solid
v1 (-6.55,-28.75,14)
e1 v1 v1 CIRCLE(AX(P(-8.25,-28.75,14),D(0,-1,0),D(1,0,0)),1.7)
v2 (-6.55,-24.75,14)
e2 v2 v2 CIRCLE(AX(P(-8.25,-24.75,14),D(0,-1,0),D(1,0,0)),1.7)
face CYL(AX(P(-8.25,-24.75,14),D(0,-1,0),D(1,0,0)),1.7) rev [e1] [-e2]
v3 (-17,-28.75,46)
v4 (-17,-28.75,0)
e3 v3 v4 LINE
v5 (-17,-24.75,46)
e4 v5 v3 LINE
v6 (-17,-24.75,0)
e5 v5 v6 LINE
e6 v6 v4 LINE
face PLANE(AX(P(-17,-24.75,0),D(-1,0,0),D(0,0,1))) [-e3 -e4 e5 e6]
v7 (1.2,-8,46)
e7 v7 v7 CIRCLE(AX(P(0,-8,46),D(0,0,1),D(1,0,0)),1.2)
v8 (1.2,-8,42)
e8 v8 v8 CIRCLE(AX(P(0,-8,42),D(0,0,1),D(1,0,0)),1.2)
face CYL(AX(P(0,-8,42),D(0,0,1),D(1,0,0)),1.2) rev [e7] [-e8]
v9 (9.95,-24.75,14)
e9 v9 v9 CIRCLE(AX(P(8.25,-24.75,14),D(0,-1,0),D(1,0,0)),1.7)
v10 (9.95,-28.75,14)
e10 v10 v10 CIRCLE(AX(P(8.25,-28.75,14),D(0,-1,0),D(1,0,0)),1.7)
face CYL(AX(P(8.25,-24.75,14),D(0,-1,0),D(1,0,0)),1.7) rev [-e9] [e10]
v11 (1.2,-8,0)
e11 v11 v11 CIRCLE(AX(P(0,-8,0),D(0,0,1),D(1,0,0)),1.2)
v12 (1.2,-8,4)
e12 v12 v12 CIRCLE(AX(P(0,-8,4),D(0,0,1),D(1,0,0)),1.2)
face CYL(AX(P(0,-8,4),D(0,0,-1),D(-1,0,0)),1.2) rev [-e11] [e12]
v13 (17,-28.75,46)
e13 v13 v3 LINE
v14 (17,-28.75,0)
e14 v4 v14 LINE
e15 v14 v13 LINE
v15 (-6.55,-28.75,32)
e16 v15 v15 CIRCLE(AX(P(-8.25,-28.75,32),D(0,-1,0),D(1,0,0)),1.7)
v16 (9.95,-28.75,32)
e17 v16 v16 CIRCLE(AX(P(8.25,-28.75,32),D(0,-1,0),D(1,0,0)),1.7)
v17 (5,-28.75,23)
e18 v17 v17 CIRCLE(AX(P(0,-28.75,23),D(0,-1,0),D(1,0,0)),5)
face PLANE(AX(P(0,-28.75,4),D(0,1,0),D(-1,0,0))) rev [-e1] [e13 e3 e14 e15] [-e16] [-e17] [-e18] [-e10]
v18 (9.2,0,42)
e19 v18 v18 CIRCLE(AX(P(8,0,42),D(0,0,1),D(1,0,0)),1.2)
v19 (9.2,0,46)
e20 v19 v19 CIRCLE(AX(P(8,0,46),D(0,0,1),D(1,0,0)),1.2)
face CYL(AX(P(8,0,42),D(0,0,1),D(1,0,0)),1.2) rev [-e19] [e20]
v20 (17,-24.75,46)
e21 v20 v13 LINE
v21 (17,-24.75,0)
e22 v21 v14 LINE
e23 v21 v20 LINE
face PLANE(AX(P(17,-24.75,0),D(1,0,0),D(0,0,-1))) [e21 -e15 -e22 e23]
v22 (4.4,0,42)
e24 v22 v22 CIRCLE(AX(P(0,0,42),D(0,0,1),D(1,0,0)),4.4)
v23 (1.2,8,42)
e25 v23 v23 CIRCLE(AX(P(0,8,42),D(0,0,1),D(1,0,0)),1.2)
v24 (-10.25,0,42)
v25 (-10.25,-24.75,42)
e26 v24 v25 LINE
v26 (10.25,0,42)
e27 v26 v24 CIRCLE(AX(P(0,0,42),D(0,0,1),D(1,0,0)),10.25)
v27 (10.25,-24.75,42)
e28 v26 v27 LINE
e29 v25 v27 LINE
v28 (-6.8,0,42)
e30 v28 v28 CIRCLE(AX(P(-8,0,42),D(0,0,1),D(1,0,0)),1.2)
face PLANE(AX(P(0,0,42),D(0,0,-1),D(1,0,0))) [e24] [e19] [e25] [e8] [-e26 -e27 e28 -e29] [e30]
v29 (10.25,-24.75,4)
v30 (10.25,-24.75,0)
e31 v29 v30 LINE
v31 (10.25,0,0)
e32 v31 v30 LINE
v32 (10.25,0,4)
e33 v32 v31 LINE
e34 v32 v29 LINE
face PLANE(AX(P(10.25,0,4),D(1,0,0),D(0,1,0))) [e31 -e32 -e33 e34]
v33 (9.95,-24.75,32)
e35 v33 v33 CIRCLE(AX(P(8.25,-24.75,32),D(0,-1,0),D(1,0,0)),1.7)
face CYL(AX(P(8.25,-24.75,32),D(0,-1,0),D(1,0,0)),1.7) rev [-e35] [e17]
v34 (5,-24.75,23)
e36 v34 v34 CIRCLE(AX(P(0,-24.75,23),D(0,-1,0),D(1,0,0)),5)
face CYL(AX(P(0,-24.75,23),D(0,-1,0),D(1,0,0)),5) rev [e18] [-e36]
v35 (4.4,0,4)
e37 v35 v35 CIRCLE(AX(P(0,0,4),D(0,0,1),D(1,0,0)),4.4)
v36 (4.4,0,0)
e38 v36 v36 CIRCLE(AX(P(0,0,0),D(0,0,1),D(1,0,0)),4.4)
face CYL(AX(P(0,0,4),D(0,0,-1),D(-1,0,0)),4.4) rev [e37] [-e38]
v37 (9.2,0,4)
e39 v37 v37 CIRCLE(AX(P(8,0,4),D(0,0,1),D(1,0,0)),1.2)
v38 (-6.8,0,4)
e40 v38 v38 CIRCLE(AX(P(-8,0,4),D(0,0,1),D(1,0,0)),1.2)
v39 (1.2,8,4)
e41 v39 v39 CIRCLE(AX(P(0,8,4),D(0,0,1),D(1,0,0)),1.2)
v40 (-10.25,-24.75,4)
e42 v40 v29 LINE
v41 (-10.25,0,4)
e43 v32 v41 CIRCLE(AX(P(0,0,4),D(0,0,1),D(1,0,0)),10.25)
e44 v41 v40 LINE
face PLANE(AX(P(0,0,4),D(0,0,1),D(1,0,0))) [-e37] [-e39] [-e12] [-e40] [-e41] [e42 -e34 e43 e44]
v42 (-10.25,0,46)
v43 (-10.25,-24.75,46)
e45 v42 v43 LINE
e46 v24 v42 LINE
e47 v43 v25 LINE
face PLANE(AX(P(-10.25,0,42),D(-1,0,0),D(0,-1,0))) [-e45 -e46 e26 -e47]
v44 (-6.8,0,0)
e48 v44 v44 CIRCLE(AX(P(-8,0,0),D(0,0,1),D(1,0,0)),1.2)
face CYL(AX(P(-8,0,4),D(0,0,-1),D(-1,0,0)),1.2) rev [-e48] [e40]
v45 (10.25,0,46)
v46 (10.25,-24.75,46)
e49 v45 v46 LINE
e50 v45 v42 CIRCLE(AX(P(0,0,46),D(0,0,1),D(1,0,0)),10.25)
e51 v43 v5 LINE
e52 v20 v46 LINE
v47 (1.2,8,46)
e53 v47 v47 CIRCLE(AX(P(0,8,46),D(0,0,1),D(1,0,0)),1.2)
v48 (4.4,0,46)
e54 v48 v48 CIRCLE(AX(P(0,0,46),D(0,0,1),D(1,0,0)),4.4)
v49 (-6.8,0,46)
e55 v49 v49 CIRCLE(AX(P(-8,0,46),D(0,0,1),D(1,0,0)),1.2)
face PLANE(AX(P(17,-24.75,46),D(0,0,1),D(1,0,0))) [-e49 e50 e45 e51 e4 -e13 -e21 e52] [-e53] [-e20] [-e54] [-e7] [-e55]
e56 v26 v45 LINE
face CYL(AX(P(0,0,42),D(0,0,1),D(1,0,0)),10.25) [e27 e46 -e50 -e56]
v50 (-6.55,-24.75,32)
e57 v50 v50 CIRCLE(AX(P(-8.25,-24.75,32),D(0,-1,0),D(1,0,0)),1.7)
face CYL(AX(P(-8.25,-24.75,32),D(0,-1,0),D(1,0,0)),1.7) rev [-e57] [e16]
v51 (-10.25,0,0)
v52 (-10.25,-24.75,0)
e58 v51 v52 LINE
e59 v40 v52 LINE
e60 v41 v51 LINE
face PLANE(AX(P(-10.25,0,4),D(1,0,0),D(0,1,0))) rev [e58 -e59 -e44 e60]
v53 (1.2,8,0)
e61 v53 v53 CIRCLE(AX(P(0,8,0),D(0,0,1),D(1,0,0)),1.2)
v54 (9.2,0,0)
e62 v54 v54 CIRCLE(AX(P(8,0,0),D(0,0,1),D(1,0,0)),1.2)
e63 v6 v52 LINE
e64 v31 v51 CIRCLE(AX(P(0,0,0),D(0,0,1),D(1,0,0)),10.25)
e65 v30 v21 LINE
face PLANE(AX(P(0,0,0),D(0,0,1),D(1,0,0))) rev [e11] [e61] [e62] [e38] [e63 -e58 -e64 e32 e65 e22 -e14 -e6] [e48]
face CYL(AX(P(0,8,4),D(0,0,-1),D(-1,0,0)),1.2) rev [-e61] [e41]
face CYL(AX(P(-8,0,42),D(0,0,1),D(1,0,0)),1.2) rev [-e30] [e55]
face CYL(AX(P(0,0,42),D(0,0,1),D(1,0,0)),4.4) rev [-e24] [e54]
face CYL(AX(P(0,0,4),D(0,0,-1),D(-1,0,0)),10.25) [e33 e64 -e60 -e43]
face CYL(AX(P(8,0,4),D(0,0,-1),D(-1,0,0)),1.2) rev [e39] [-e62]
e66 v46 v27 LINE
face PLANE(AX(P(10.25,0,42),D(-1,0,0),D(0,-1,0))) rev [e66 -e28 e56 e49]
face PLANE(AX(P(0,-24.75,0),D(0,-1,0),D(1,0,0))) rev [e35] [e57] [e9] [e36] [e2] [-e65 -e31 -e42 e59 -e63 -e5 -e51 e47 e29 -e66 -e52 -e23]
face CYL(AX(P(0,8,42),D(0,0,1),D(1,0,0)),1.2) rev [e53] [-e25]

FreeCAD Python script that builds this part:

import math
import FreeCAD as App
import Part
import Sketcher

doc = App.newDocument("Part")
body = doc.addObject("PartDesign::Body", "Body")

# Sketch on XY plane
sketch1 = body.newObject("Sketcher::SketchObject", "Sketch")
sketch1.AttachmentSupport = (doc.getObject("XY_Plane"), [""])
sketch1.MapMode = "FlatFace"
sketch1.addGeometry([
    Part.LineSegment(App.Vector(-10.25, -28.75, 0), App.Vector(10.25, -28.75, 0)),  # 0
    Part.LineSegment(App.Vector(10.25, -28.75, 0), App.Vector(10.25, 0, 0)),  # 1
    Part.ArcOfCircle(Part.Circle(App.Vector(0, 0, 0), App.Vector(0, 0, 1), 10.25), math.radians(0), math.radians(180)),  # 2
    Part.LineSegment(App.Vector(-10.25, 0, 0), App.Vector(-10.25, -28.75, 0)),  # 3
    Part.Circle(App.Vector(-8, 0, 0), App.Vector(0, 0, 1), 1.2),  # 4
    Part.Circle(App.Vector(0, -8, 0), App.Vector(0, 0, 1), 1.2),  # 5
    Part.Circle(App.Vector(0, 0, 0), App.Vector(0, 0, 1), 4.4),  # 6
    Part.Circle(App.Vector(8, 0, 0), App.Vector(0, 0, 1), 1.2),  # 7
    Part.Circle(App.Vector(0, 8, 0), App.Vector(0, 0, 1), 1.2),  # 8
], False)
sketch1.addConstraint([
    Sketcher.Constraint("Coincident", 0, 2, 1, 1),
    Sketcher.Constraint("Tangent", 1, 2, 2, 1),
    Sketcher.Constraint("Tangent", 2, 2, 3, 1),
    Sketcher.Constraint("Coincident", 3, 2, 0, 1),
    Sketcher.Constraint("Horizontal", 0),
    Sketcher.Constraint("Vertical", 1),
    Sketcher.Constraint("Vertical", 3),
    Sketcher.Constraint("Coincident", 2, 3, -1, 1),
    Sketcher.Constraint("Coincident", 6, 3, -1, 1),
    Sketcher.Constraint("Equal", 4, 5),
    Sketcher.Constraint("Equal", 5, 7),
    Sketcher.Constraint("Equal", 7, 8),
    Sketcher.Constraint("Symmetric", 4, 3, 7, 3, -1, 1),
    Sketcher.Constraint("Symmetric", 5, 3, 8, 3, -1, 1),
    Sketcher.Constraint("PointOnObject", 4, 3, -1),
    Sketcher.Constraint("PointOnObject", 5, 3, -2),
    Sketcher.Constraint("Diameter", 4, 2.4),
    Sketcher.Constraint("Diameter", 6, 8.8),
    Sketcher.Constraint("Radius", 2, 10.25),
    Sketcher.Constraint("DistanceX", 4, 3, -1, 1, 8.0),
    Sketcher.Constraint("DistanceY", 5, 3, -1, 1, 8.0),
    Sketcher.Constraint("DistanceY", 1, 1, 1, 2, 28.75),
])
pad1 = body.newObject("PartDesign::Pad", "Pad")
pad1.Profile = sketch1
pad1.Length = 4

# Sketch on XZ plane
sketch2 = body.newObject("Sketcher::SketchObject", "Sketch001")
sketch2.AttachmentSupport = (doc.getObject("XZ_Plane"), [""])
sketch2.MapMode = "FlatFace"
sketch2.AttachmentOffset = App.Placement(App.Vector(0, 0, 28.75), App.Rotation())
sketch2.addGeometry([
    Part.LineSegment(App.Vector(17, 0, 0), App.Vector(17, 46, 0)),  # 0
    Part.LineSegment(App.Vector(17, 46, 0), App.Vector(-17, 46, 0)),  # 1
    Part.LineSegment(App.Vector(-17, 46, 0), App.Vector(-17, 0, 0)),  # 2
    Part.LineSegment(App.Vector(-17, 0, 0), App.Vector(17, 0, 0)),  # 3
    Part.Circle(App.Vector(8.25, 32, 0), App.Vector(0, 0, 1), 1.7),  # 4
    Part.Circle(App.Vector(-8.25, 32, 0), App.Vector(0, 0, 1), 1.7),  # 5
    Part.Circle(App.Vector(8.25, 14, 0), App.Vector(0, 0, 1), 1.7),  # 6
    Part.Circle(App.Vector(0, 23, 0), App.Vector(0, 0, 1), 5),  # 7
    Part.Circle(App.Vector(-8.25, 14, 0), App.Vector(0, 0, 1), 1.7),  # 8
], False)
sketch2.addConstraint([
    Sketcher.Constraint("Coincident", 0, 2, 1, 1),
    Sketcher.Constraint("Coincident", 1, 2, 2, 1),
    Sketcher.Constraint("Coincident", 2, 2, 3, 1),
    Sketcher.Constraint("Coincident", 3, 2, 0, 1),
    Sketcher.Constraint("Vertical", 0),
    Sketcher.Constraint("Horizontal", 1),
    Sketcher.Constraint("Vertical", 2),
    Sketcher.Constraint("Horizontal", 3),
    Sketcher.Constraint("Equal", 4, 5),
    Sketcher.Constraint("Equal", 5, 6),
    Sketcher.Constraint("Equal", 6, 8),
    Sketcher.Constraint("Symmetric", 2, 2, 3, 2, -1, 1),
    Sketcher.Constraint("Symmetric", 4, 3, 5, 3, -2),
    Sketcher.Constraint("Symmetric", 6, 3, 8, 3, -2),
    Sketcher.Constraint("PointOnObject", 7, 3, -2),
    Sketcher.Constraint("Vertical", 4, 3, 6, 3),
    Sketcher.Constraint("Diameter", 7, 10.0),
    Sketcher.Constraint("Diameter", 4, 3.4),
    Sketcher.Constraint("DistanceX", 1, 2, 1, 1, 34.0),
    Sketcher.Constraint("DistanceY", 0, 1, 0, 2, 46.0),
    Sketcher.Constraint("DistanceY", -1, 1, 4, 3, 32.0),
    Sketcher.Constraint("DistanceY", -1, 1, 6, 3, 14.0),
    Sketcher.Constraint("DistanceY", -1, 1, 7, 3, 23.0),
    Sketcher.Constraint("DistanceX", 5, 3, 4, 3, 16.5),
])
pad2 = body.newObject("PartDesign::Pad", "Pad001")
pad2.Profile = sketch2
pad2.Length = 4
pad2.Reversed = True
doc.recompute()

datumplane = body.newObject("PartDesign::Plane", "DatumPlane")
datumplane.AttachmentSupport = (doc.getObject("XY_Plane"), [""])
datumplane.MapMode = "FlatFace"
datumplane.AttachmentOffset = App.Placement(App.Vector(0, 0, 23), App.Rotation())
mirrored = body.newObject("PartDesign::Mirrored", "Mirrored")
mirrored.Originals = [pad1]
mirrored.MirrorPlane = (datumplane, [""])
body.Tip = mirrored

doc.recompute()
